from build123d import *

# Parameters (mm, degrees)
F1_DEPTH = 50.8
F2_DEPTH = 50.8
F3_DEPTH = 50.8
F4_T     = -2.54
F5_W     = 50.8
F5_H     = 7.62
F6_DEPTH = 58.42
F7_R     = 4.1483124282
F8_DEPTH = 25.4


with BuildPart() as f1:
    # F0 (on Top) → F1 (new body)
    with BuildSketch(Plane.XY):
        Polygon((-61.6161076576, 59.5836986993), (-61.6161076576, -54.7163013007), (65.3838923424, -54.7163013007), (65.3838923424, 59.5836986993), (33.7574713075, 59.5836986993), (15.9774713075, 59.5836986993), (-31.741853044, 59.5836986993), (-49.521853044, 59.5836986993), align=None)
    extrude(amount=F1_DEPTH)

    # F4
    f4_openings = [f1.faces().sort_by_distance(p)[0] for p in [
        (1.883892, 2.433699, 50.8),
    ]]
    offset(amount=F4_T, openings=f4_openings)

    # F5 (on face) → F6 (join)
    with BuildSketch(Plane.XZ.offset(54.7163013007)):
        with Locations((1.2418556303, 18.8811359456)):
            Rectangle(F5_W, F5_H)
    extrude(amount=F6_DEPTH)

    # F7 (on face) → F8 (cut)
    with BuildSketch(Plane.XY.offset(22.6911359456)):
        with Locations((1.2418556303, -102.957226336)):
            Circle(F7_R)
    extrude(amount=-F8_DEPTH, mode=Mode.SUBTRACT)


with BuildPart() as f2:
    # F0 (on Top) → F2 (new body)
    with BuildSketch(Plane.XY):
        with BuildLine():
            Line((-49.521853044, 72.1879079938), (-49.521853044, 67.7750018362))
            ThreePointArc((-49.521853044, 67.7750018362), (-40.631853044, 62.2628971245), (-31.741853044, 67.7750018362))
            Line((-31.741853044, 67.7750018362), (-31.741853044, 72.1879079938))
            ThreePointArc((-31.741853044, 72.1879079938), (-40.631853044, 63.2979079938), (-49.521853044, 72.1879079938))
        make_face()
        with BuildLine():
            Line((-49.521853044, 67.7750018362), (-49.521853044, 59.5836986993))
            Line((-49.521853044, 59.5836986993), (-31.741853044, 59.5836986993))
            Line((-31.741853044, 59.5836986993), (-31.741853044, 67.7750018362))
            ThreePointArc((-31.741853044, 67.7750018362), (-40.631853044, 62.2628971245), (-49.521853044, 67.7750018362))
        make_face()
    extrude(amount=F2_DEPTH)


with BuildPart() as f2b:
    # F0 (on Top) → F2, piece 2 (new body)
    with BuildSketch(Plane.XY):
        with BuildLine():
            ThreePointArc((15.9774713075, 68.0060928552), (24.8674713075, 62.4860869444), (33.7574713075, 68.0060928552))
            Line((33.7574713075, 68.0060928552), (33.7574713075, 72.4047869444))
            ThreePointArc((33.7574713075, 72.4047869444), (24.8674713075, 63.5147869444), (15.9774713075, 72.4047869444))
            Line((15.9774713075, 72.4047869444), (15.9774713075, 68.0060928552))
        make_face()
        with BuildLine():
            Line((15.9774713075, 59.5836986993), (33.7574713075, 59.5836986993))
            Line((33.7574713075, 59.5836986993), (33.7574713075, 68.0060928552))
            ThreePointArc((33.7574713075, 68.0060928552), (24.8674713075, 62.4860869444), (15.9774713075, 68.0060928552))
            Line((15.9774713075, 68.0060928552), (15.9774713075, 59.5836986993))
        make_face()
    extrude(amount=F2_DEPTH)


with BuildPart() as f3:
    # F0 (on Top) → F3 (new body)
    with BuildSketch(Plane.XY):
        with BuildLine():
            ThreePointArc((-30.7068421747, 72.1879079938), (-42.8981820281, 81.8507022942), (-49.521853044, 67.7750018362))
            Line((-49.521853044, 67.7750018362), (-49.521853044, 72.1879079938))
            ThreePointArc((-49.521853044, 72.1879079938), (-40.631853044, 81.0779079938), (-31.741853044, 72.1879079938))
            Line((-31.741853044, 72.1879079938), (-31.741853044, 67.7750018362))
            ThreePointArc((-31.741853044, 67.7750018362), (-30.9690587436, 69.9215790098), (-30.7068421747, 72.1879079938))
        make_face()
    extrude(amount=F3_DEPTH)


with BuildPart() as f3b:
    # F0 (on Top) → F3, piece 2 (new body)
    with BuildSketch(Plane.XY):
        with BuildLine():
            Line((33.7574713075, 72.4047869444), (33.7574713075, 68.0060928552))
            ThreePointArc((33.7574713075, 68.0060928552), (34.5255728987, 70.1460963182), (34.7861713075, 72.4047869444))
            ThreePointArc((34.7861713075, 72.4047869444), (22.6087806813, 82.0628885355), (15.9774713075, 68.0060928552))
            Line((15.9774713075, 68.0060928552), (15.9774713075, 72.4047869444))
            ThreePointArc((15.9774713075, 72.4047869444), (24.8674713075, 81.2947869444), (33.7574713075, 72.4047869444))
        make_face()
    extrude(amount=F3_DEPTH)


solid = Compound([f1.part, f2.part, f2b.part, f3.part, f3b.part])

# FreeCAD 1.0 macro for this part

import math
import FreeCAD as App
import Part
import Sketcher
from FreeCAD import Vector
Q = App.Units.Quantity


def faces_at(feature, points):
    """Names of the faces that lie closest to the given points."""
    faces = feature.Shape.Faces
    near = lambda p: min(range(len(faces)), key=lambda i: faces[i].distToShape(Part.Vertex(*p))[0])
    return sorted({f"Face{near(p) + 1}" for p in points})


def add_polygon(sketch, points):
    """Adds a closed chain of lines whose ends are joined by coincident constraints."""
    first, n = sketch.GeometryCount, len(points)
    for a, b in zip(points, points[1:] + points[:1]):
        sketch.addGeometry(Part.LineSegment(App.Vector(*a, 0), App.Vector(*b, 0)), False)
    for i in range(n):
        sketch.addConstraint(Sketcher.Constraint("Coincident", first + i, 2, first + (i + 1) % n, 1))

doc = App.newDocument("Part")
params = doc.addObject("Spreadsheet::Sheet", "Params")
for row, (alias, value) in enumerate([
    ("sketch1_width", "5 in"),
    ("sketch1_height", "4.5 in"),
    ("pad1_length", "2 in"),
    ("thickness_wall", "0.1 in"),
    ("sketch2_width", "2 in"),
    ("sketch2_height", "0.3 in"),
    ("pad2_length", "2.3 in"),
    ("pocket1_length", "1 in"),
    ("sketch4_radius", "0.35 in"),
    ("pad3_length", "2 in"),
    ("sketch5_radius", "0.35 in"),
    ("pad4_length", "2 in"),
    ("sketch6_radius", "0.35 in"),
    ("pad5_length", "2 in"),
    ("sketch7_radius", "0.35 in"),
    ("pad6_length", "2 in"),
], start=1):
    params.set(f"A{row}", alias)
    params.set(f"B{row}", "=" + value)
    params.setAlias(f"B{row}", alias)

body = doc.addObject("PartDesign::Body", "Body")

# Sketch on XY plane
sketch1 = body.newObject("Sketcher::SketchObject", "Sketch")
sketch1.AttachmentSupport = (doc.getObject("XY_Plane"), [""])
sketch1.MapMode = "FlatFace"
add_polygon(sketch1, [(-62, 60), (-62, -55), (65, -55), (65, 60)])  # lines 0-3
sketch1.addConstraint([
    Sketcher.Constraint("Vertical", 0),
    Sketcher.Constraint("Horizontal", 1),
    Sketcher.Constraint("Vertical", 2),
    Sketcher.Constraint("Horizontal", 3),
    Sketcher.Constraint("DistanceX", 1, 1, 1, 2, Q("5 in")),
    Sketcher.Constraint("DistanceY", 0, 2, 0, 1, Q("4.5 in")),
    Sketcher.Constraint("DistanceY", 0, 2, -1, 1, 54.716301),
    Sketcher.Constraint("DistanceX", 0, 2, -1, 1, 61.616108),
])
sketch1.setExpression("Constraints[8]", "Params.sketch1_width")
sketch1.setExpression("Constraints[9]", "Params.sketch1_height")
pad1 = body.newObject("PartDesign::Pad", "Pad")
pad1.Profile = sketch1
pad1.setExpression("Length", "Params.pad1_length")
doc.recompute()

thickness = body.newObject("PartDesign::Thickness", "Thickness")
thickness.Base = (pad1, faces_at(pad1, [(1.884, 2.434, 50.8)]))
thickness.setExpression("Value", "Params.thickness_wall")
thickness.Reversed = True
thickness.Join = "Arc"

# Sketch on XZ plane
sketch2 = body.newObject("Sketcher::SketchObject", "Sketch001")
sketch2.AttachmentSupport = (doc.getObject("XZ_Plane"), [""])
sketch2.MapMode = "FlatFace"
sketch2.AttachmentOffset = App.Placement(Vector(0, 0, 54.716301), App.Rotation())
add_polygon(sketch2, [(-24, 23), (-24, 15), (27, 15), (27, 23)])  # lines 0-3
sketch2.addConstraint([
    Sketcher.Constraint("Vertical", 0),
    Sketcher.Constraint("Horizontal", 1),
    Sketcher.Constraint("Vertical", 2),
    Sketcher.Constraint("Horizontal", 3),
    Sketcher.Constraint("DistanceX", 1, 1, 1, 2, Q("2 in")),
    Sketcher.Constraint("DistanceY", 0, 2, 0, 1, Q("0.3 in")),
    Sketcher.Constraint("DistanceX", 0, 2, -1, 1, 24.158144),
    Sketcher.Constraint("DistanceY", -1, 1, 0, 2, 15.071136),
])
sketch2.setExpression("Constraints[8]", "Params.sketch2_width")
sketch2.setExpression("Constraints[9]", "Params.sketch2_height")
pad2 = body.newObject("PartDesign::Pad", "Pad001")
pad2.Profile = sketch2
pad2.setExpression("Length", "Params.pad2_length")

# Sketch on XY plane
sketch3 = body.newObject("Sketcher::SketchObject", "Sketch002")
sketch3.AttachmentSupport = (doc.getObject("XY_Plane"), [""])
sketch3.MapMode = "FlatFace"
sketch3.AttachmentOffset = App.Placement(Vector(0, 0, 22.691136), App.Rotation())
sketch3.addGeometry(Part.Circle(Vector(1.2, -103, 0), Vector(0, 0, 1), 4.1), False)
sketch3.addConstraint([
    Sketcher.Constraint("Diameter", 0, 8.296625),
    Sketcher.Constraint("DistanceX", -1, 1, 0, 3, 1.241856),
    Sketcher.Constraint("DistanceY", 0, 3, -1, 1, 102.957226),
])
pocket1 = body.newObject("PartDesign::Pocket", "Pocket")
pocket1.Profile = sketch3
pocket1.setExpression("Length", "Params.pocket1_length")
body2 = doc.addObject("PartDesign::Body", "Body001")

# Sketch on XY plane
sketch4 = body2.newObject("Sketcher::SketchObject", "Sketch003")
sketch4.AttachmentSupport = (doc.getObject("XY_Plane001"), [""])
sketch4.MapMode = "FlatFace"
sketch4.addGeometry([
    Part.LineSegment(Vector(-50, 72, 0), Vector(-50, 60, 0)),
    Part.LineSegment(Vector(-50, 60, 0), Vector(-32, 60, 0)),
    Part.LineSegment(Vector(-32, 60, 0), Vector(-32, 72, 0)),
    Part.ArcOfCircle(Part.Circle(Vector(-41, 72, 0), Vector(0, 0, 1), 9), math.radians(180), math.radians(360)),
], False)
sketch4.addConstraint([
    Sketcher.Constraint("Coincident", 0, 2, 1, 1),
    Sketcher.Constraint("Coincident", 1, 2, 2, 1),
    Sketcher.Constraint("Tangent", 2, 2, 3, 2),
    Sketcher.Constraint("Tangent", 3, 1, 0, 1),
    Sketcher.Constraint("Vertical", 0),
    Sketcher.Constraint("Horizontal", 1),
    Sketcher.Constraint("Vertical", 2),
    Sketcher.Constraint("Radius", 3, Q("0.35 in")),
    Sketcher.Constraint("DistanceY", 0, 2, 0, 1, 12.604209),
    Sketcher.Constraint("DistanceY", -1, 1, 0, 2, 59.583699),
    Sketcher.Constraint("DistanceX", 3, 3, -1, 1, 40.631853),
])
sketch4.setExpression("Constraints[7]", "Params.sketch4_radius")
pad3 = body2.newObject("PartDesign::Pad", "Pad002")
pad3.Profile = sketch4
pad3.setExpression("Length", "Params.pad3_length")
body3 = doc.addObject("PartDesign::Body", "Body002")

# Sketch on XY plane
sketch5 = body3.newObject("Sketcher::SketchObject", "Sketch004")
sketch5.AttachmentSupport = (doc.getObject("XY_Plane002"), [""])
sketch5.MapMode = "FlatFace"
sketch5.addGeometry([
    Part.ArcOfCircle(Part.Circle(Vector(25, 72, 0), Vector(0, 0, 1), 9), math.radians(180), math.radians(360)),
    Part.LineSegment(Vector(16, 72, 0), Vector(16, 60, 0)),
    Part.LineSegment(Vector(16, 60, 0), Vector(34, 60, 0)),
    Part.LineSegment(Vector(34, 60, 0), Vector(34, 72, 0)),
], False)
sketch5.addConstraint([
    Sketcher.Constraint("Tangent", 0, 1, 1, 1),
    Sketcher.Constraint("Coincident", 1, 2, 2, 1),
    Sketcher.Constraint("Coincident", 2, 2, 3, 1),
    Sketcher.Constraint("Tangent", 3, 2, 0, 2),
    Sketcher.Constraint("Vertical", 1),
    Sketcher.Constraint("Horizontal", 2),
    Sketcher.Constraint("Vertical", 3),
    Sketcher.Constraint("Radius", 0, Q("0.35 in")),
    Sketcher.Constraint("DistanceY", 1, 2, 1, 1, 12.821088),
    Sketcher.Constraint("DistanceY", -1, 1, 1, 2, 59.583699),
    Sketcher.Constraint("DistanceX", -1, 1, 0, 3, 24.867471),
])
sketch5.setExpression("Constraints[7]", "Params.sketch5_radius")
pad4 = body3.newObject("PartDesign::Pad", "Pad003")
pad4.Profile = sketch5
pad4.setExpression("Length", "Params.pad4_length")
body4 = doc.addObject("PartDesign::Body", "Body003")

# Sketch on XY plane
sketch6 = body4.newObject("Sketcher::SketchObject", "Sketch005")
sketch6.AttachmentSupport = (doc.getObject("XY_Plane003"), [""])
sketch6.MapMode = "FlatFace"
sketch6.addGeometry([
    Part.ArcOfCircle(Part.Circle(Vector(-40.6, 72.2, 0), Vector(0, 0, 1), 9.9), math.radians(0), math.radians(206)),  # 0
    Part.LineSegment(Vector(-49.5, 67.8, 0), Vector(-49.5, 72.2, 0)),  # 1
    Part.ArcOfCircle(Part.Circle(Vector(-40.6, 72.2, 0), Vector(0, 0, 1), 8.9), math.radians(0), math.radians(180)),  # 2
    Part.LineSegment(Vector(-31.7, 72.2, 0), Vector(-31.7, 67.8, 0)),  # 3
    Part.ArcOfCircle(Part.Circle(Vector(-40.6, 72.2, 0), Vector(0, 0, 1), 9.9), math.radians(-26), math.radians(0)),  # 4
], False)
sketch6.addConstraint([
    Sketcher.Constraint("Coincident", 0, 2, 1, 1),
    Sketcher.Constraint("Tangent", 1, 2, 2, 2),
    Sketcher.Constraint("Tangent", 2, 1, 3, 1),
    Sketcher.Constraint("Coincident", 3, 2, 4, 1),
    Sketcher.Constraint("Tangent", 4, 2, 0, 1),
    Sketcher.Constraint("Vertical", 1),
    Sketcher.Constraint("Vertical", 3),
    Sketcher.Constraint("Coincident", 2, 3, 0, 3),
    Sketcher.Constraint("Equal", 0, 4),
    Sketcher.Constraint("Horizontal", 2, 1, 4, 2),
    Sketcher.Constraint("Radius", 2, Q("0.35 in")),
    Sketcher.Constraint("Radius", 0, 9.925011),
    Sketcher.Constraint("DistanceY", -1, 1, 0, 2, 67.775002),
    Sketcher.Constraint("DistanceX", 0, 3, -1, 1, 40.631853),
])
sketch6.setExpression("Constraints[10]", "Params.sketch6_radius")
pad5 = body4.newObject("PartDesign::Pad", "Pad004")
pad5.Profile = sketch6
pad5.setExpression("Length", "Params.pad5_length")
body5 = doc.addObject("PartDesign::Body", "Body004")

# Sketch on XY plane
sketch7 = body5.newObject("Sketcher::SketchObject", "Sketch006")
sketch7.AttachmentSupport = (doc.getObject("XY_Plane004"), [""])
sketch7.MapMode = "FlatFace"
sketch7.addGeometry([
    Part.LineSegment(Vector(33.8, 72.4, 0), Vector(33.8, 68, 0)),  # 0
    Part.ArcOfCircle(Part.Circle(Vector(24.9, 72.4, 0), Vector(0, 0, 1), 9.9), math.radians(-26), math.radians(0)),  # 1
    Part.ArcOfCircle(Part.Circle(Vector(24.9, 72.4, 0), Vector(0, 0, 1), 9.9), math.radians(0), math.radians(206)),  # 2
    Part.LineSegment(Vector(16, 68, 0), Vector(16, 72.4, 0)),  # 3
    Part.ArcOfCircle(Part.Circle(Vector(24.9, 72.4, 0), Vector(0, 0, 1), 8.9), math.radians(0), math.radians(180)),  # 4
], False)
sketch7.addConstraint([
    Sketcher.Constraint("Coincident", 0, 2, 1, 1),
    Sketcher.Constraint("Tangent", 1, 2, 2, 1),
    Sketcher.Constraint("Coincident", 2, 2, 3, 1),
    Sketcher.Constraint("Tangent", 3, 2, 4, 2),
    Sketcher.Constraint("Tangent", 4, 1, 0, 1),
    Sketcher.Constraint("Vertical", 0),
    Sketcher.Constraint("Vertical", 3),
    Sketcher.Constraint("Coincident", 4, 3, 1, 3),
    Sketcher.Constraint("Equal", 1, 2),
    Sketcher.Constraint("Horizontal", 4, 3, 1, 2),
    Sketcher.Constraint("Radius", 4, Q("0.35 in")),
    Sketcher.Constraint("Radius", 1, Q("0.3905 in")),
    Sketcher.Constraint("DistanceX", -1, 1, 1, 3, 24.867471),
    Sketcher.Constraint("DistanceY", -1, 1, 1, 3, 72.404787),
])
sketch7.setExpression("Constraints[10]", "Params.sketch7_radius")
pad6 = body5.newObject("PartDesign::Pad", "Pad005")
pad6.Profile = sketch7
pad6.setExpression("Length", "Params.pad6_length")

doc.recompute()
